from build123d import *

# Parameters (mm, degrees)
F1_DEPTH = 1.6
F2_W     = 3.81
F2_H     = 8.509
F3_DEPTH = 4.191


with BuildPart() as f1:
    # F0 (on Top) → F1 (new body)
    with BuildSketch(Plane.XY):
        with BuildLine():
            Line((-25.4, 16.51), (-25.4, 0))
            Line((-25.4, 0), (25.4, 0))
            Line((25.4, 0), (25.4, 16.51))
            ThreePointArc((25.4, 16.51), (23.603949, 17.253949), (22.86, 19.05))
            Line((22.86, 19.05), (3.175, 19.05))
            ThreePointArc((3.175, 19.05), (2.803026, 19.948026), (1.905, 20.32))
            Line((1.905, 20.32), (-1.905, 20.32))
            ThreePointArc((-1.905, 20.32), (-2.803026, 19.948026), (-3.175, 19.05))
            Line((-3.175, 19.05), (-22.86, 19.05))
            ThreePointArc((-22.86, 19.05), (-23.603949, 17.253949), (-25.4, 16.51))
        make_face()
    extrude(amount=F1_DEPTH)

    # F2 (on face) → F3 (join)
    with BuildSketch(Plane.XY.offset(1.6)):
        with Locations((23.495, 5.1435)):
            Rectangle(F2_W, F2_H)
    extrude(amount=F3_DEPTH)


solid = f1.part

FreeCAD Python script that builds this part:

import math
import FreeCAD as App
import Part
import Sketcher
from FreeCAD import Vector
Q = App.Units.Quantity


def add_polygon(sketch, points):
    """Adds a closed chain of lines whose ends are joined by coincident constraints."""
    first, n = sketch.GeometryCount, len(points)
    for a, b in zip(points, points[1:] + points[:1]):
        sketch.addGeometry(Part.LineSegment(App.Vector(*a, 0), App.Vector(*b, 0)), False)
    for i in range(n):
        sketch.addConstraint(Sketcher.Constraint("Coincident", first + i, 2, first + (i + 1) % n, 1))

doc = App.newDocument("Part")
body = doc.addObject("PartDesign::Body", "Body")

# Sketch on XY plane
sketch1 = body.newObject("Sketcher::SketchObject", "Sketch")
sketch1.AttachmentSupport = (doc.getObject("XY_Plane"), [""])
sketch1.MapMode = "FlatFace"
sketch1.addGeometry([
    Part.LineSegment(Vector(-25.4, 16.5, 0), Vector(-25.4, 0, 0)),  # 0
    Part.LineSegment(Vector(-25.4, 0, 0), Vector(25.4, 0, 0)),  # 1
    Part.LineSegment(Vector(25.4, 0, 0), Vector(25.4, 16.5, 0)),  # 2
    Part.ArcOfCircle(Part.Circle(Vector(25.4, 19.1, 0), Vector(0, 0, 1), 2.5), math.radians(-180), math.radians(-90)),  # 3
    Part.LineSegment(Vector(22.9, 19.1, 0), Vector(3.2, 19.1, 0)),  # 4
    Part.ArcOfCircle(Part.Circle(Vector(1.9, 19.1, 0), Vector(0, 0, 1), 1.3), math.radians(0), math.radians(90)),  # 5
    Part.LineSegment(Vector(1.9, 20.3, 0), Vector(-1.9, 20.3, 0)),  # 6
    Part.ArcOfCircle(Part.Circle(Vector(-1.9, 19.1, 0), Vector(0, 0, 1), 1.3), math.radians(90), math.radians(180)),  # 7
    Part.LineSegment(Vector(-3.2, 19.1, 0), Vector(-22.9, 19.1, 0)),  # 8
    Part.ArcOfCircle(Part.Circle(Vector(-25.4, 19.1, 0), Vector(0, 0, 1), 2.5), math.radians(-90), math.radians(0)),  # 9
], False)
sketch1.addConstraint([
    Sketcher.Constraint("Coincident", 0, 2, 1, 1),
    Sketcher.Constraint("Coincident", 1, 2, 2, 1),
    Sketcher.Constraint("Coincident", 2, 2, 3, 2),
    Sketcher.Constraint("Coincident", 3, 1, 4, 1),
    Sketcher.Constraint("Coincident", 4, 2, 5, 1),
    Sketcher.Constraint("Tangent", 5, 2, 6, 1),
    Sketcher.Constraint("Tangent", 6, 2, 7, 1),
    Sketcher.Constraint("Coincident", 7, 2, 8, 1),
    Sketcher.Constraint("Coincident", 8, 2, 9, 2),
    Sketcher.Constraint("Coincident", 9, 1, 0, 1),
    Sketcher.Constraint("Vertical", 0),
    Sketcher.Constraint("Horizontal", 1),
    Sketcher.Constraint("Vertical", 2),
    Sketcher.Constraint("Horizontal", 4),
    Sketcher.Constraint("Horizontal", 6),
    Sketcher.Constraint("Horizontal", 8),
    Sketcher.Constraint("Equal", 5, 7),
    Sketcher.Constraint("Equal", 3, 9),
    Sketcher.Constraint("Symmetric", 0, 2, 1, 2, -1, 1),
    Sketcher.Constraint("Symmetric", 3, 3, 9, 3, -2),
    Sketcher.Constraint("Symmetric", 4, 2, 7, 2, -2),
    Sketcher.Constraint("Horizontal", 3, 3, 5, 3),
    Sketcher.Constraint("Horizontal", 9, 3, 3, 1),
    Sketcher.Constraint("Vertical", 9, 3, 0, 2),
    Sketcher.Constraint("Radius", 3, Q("0.1 in")),
    Sketcher.Constraint("DistanceX", 1, 1, 1, 2, Q("2 in")),
    Sketcher.Constraint("Radius", 5, Q("0.0499999 in")),
    Sketcher.Constraint("DistanceX", 6, 2, 6, 1, Q("0.15 in")),
    Sketcher.Constraint("DistanceY", 0, 2, 0, 1, Q("0.65 in")),
])
pad1 = body.newObject("PartDesign::Pad", "Pad")
pad1.Profile = sketch1
pad1.Length = 1.6

# Sketch on XY plane
sketch2 = body.newObject("Sketcher::SketchObject", "Sketch001")
sketch2.AttachmentSupport = (doc.getObject("XY_Plane"), [""])
sketch2.MapMode = "FlatFace"
sketch2.AttachmentOffset = App.Placement(Vector(0, 0, 1.6), App.Rotation())
add_polygon(sketch2, [(21.6, 9.4), (21.6, 0.9), (25.4, 0.9), (25.4, 9.4)])  # lines 0-3
sketch2.addConstraint([
    Sketcher.Constraint("Vertical", 0),
    Sketcher.Constraint("Horizontal", 1),
    Sketcher.Constraint("Vertical", 2),
    Sketcher.Constraint("Horizontal", 3),
    Sketcher.Constraint("DistanceX", -1, 1, 1, 2, Q("1 in")),
    Sketcher.Constraint("DistanceX", 1, 1, 1, 2, Q("0.15 in")),
    Sketcher.Constraint("DistanceY", 0, 2, 0, 1, Q("0.335 in")),
    Sketcher.Constraint("DistanceY", -1, 1, 2, 2, Q("0.37 in")),
])
pad2 = body.newObject("PartDesign::Pad", "Pad001")
pad2.Profile = sketch2
pad2.Length = Q("0.165 in")

doc.recompute()
